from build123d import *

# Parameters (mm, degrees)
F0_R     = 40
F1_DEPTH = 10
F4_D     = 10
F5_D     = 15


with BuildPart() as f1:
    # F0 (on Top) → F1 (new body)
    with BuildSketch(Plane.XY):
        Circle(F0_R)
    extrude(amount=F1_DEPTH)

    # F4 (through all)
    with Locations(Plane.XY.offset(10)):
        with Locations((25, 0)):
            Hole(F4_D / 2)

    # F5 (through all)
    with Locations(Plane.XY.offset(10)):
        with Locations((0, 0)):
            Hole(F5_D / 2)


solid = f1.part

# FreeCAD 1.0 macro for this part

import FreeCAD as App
import Part
import Sketcher

V = App.Vector

doc = App.newDocument("Part")
params = doc.addObject("Spreadsheet::Sheet", "Params")
for row, (alias, value) in enumerate([
    ("sketch1_diameter", "80 mm"),
    ("pad1_length", "10 mm"),
    ("sketch2_diameter", "10 mm"),
    ("hole_diameter", "10 mm"),
    ("sketch3_diameter", "15 mm"),
    ("hole2_diameter", "15 mm"),
], start=1):
    params.set(f"A{row}", alias)
    params.set(f"B{row}", "=" + value)
    params.setAlias(f"B{row}", alias)

body = doc.addObject("PartDesign::Body", "Body")

sketch1 = doc.addObject("Sketcher::SketchObject", "Sketch")
body.addObject(sketch1)
sketch1.AttachmentSupport = (doc.XY_Plane, [""])
sketch1.MapMode = "FlatFace"
sketch1.addGeometry(Part.Circle(V(0, 0, 0), V(0, 0, 1), 40), False)
sketch1.addConstraint([
    Sketcher.Constraint("Coincident", 0, 3, -1, 1),
    Sketcher.Constraint("Diameter", 0, 80.0),
])
sketch1.setExpression("Constraints[1]", "Params.sketch1_diameter")
pad1 = doc.addObject("PartDesign::Pad", "Pad")
body.addObject(pad1)
pad1.Profile = sketch1
pad1.setExpression("Length", "Params.pad1_length")

sketch2 = doc.addObject("Sketcher::SketchObject", "Sketch001")
body.addObject(sketch2)
sketch2.AttachmentSupport = (doc.XY_Plane, [""])
sketch2.MapMode = "FlatFace"
sketch2.AttachmentOffset = App.Placement(V(0, 0, 10), App.Rotation())
sketch2.addGeometry(Part.Circle(V(25, 0, 0), V(0, 0, 1), 5), False)
sketch2.addConstraint([
    Sketcher.Constraint("PointOnObject", 0, 3, -1),
    Sketcher.Constraint("Diameter", 0, 10.0),
    Sketcher.Constraint("DistanceX", -1, 1, 0, 3, 25.0),
])
sketch2.setExpression("Constraints[1]", "Params.sketch2_diameter")
doc.recompute()
hole = doc.addObject("PartDesign::Hole", "Hole")
body.addObject(hole)
hole.Profile = sketch2
hole.ThreadType = "None"
hole.setExpression("Diameter", "Params.hole_diameter")
hole.DepthType = "ThroughAll"

sketch3 = doc.addObject("Sketcher::SketchObject", "Sketch002")
body.addObject(sketch3)
sketch3.AttachmentSupport = (doc.XY_Plane, [""])
sketch3.MapMode = "FlatFace"
sketch3.AttachmentOffset = App.Placement(V(0, 0, 10), App.Rotation())
sketch3.addGeometry(Part.Circle(V(0, 0, 0), V(0, 0, 1), 8), False)
sketch3.addConstraint([
    Sketcher.Constraint("Coincident", 0, 3, -1, 1),
    Sketcher.Constraint("Diameter", 0, 15.0),
])
sketch3.setExpression("Constraints[1]", "Params.sketch3_diameter")
doc.recompute()
hole2 = doc.addObject("PartDesign::Hole", "Hole001")
body.addObject(hole2)
hole2.Profile = sketch3
hole2.ThreadType = "None"
hole2.setExpression("Diameter", "Params.hole2_diameter")
hole2.DepthType = "ThroughAll"

doc.recompute()
